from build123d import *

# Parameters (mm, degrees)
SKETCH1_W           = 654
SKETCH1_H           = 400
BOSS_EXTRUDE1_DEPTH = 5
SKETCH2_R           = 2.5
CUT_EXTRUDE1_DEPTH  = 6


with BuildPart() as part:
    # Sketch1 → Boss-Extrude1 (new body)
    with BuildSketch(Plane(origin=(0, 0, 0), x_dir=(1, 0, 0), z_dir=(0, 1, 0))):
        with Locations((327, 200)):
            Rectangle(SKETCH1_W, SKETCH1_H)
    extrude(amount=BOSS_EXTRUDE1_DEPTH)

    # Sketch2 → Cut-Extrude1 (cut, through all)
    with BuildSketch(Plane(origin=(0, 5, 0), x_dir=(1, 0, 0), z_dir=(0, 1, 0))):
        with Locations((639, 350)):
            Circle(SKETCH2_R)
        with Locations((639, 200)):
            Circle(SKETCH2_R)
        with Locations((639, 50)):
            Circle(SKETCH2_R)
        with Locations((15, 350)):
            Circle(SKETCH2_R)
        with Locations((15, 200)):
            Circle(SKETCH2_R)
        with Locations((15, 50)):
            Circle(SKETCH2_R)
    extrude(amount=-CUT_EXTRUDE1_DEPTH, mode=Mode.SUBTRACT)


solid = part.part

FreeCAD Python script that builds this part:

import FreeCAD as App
import Part
import Sketcher
from FreeCAD import Vector
Q = App.Units.Quantity

doc = App.newDocument("Part")
body = doc.addObject("PartDesign::Body", "Body")

sketch1 = body.newObject("Sketcher::SketchObject", "Sketch")
sketch1.AttachmentSupport = (doc.getObject("XZ_Plane"), [""])
sketch1.MapMode = "FlatFace"
sketch1.addGeometry(Part.LineSegment(Vector(0, -400, 0), Vector(0, 0, 0)), False)
sketch1.addGeometry(Part.LineSegment(Vector(0, 0, 0), Vector(654, 0, 0)), False)
sketch1.addGeometry(Part.LineSegment(Vector(654, 0, 0), Vector(654, -400, 0)), False)
sketch1.addGeometry(Part.LineSegment(Vector(654, -400, 0), Vector(0, -400, 0)), False)
sketch1.addConstraint(Sketcher.Constraint("Coincident", 0, 2, 1, 1))
sketch1.addConstraint(Sketcher.Constraint("Coincident", 1, 2, 2, 1))
sketch1.addConstraint(Sketcher.Constraint("Coincident", 2, 2, 3, 1))
sketch1.addConstraint(Sketcher.Constraint("Coincident", 3, 2, 0, 1))
sketch1.addConstraint(Sketcher.Constraint("Vertical", 0))
sketch1.addConstraint(Sketcher.Constraint("Horizontal", 1))
sketch1.addConstraint(Sketcher.Constraint("Vertical", 2))
sketch1.addConstraint(Sketcher.Constraint("Horizontal", 3))
sketch1.addConstraint(Sketcher.Constraint("Coincident", 0, 2, -1, 1))
sketch1.addConstraint(Sketcher.Constraint("DistanceX", 1, 1, 1, 2, Q("654 mm")))
sketch1.addConstraint(Sketcher.Constraint("DistanceY", 0, 1, 0, 2, Q("400 mm")))
pad1 = body.newObject("PartDesign::Pad", "Pad")
pad1.Profile = sketch1
pad1.Length = 5
pad1.Reversed = True

sketch2 = body.newObject("Sketcher::SketchObject", "Sketch001")
sketch2.AttachmentSupport = (doc.getObject("XZ_Plane"), [""])
sketch2.MapMode = "FlatFace"
sketch2.AttachmentOffset = App.Placement(Vector(0, 0, -5), App.Rotation())
sketch2.addGeometry(Part.Circle(Vector(639, -350, 0), Vector(0, 0, 1), 2.5), False)
sketch2.addGeometry(Part.Circle(Vector(639, -200, 0), Vector(0, 0, 1), 2.5), False)
sketch2.addGeometry(Part.Circle(Vector(639, -50, 0), Vector(0, 0, 1), 2.5), False)
sketch2.addGeometry(Part.Circle(Vector(15, -350, 0), Vector(0, 0, 1), 2.5), False)
sketch2.addGeometry(Part.Circle(Vector(15, -200, 0), Vector(0, 0, 1), 2.5), False)
sketch2.addGeometry(Part.Circle(Vector(15, -50, 0), Vector(0, 0, 1), 2.5), False)
sketch2.addConstraint(Sketcher.Constraint("Equal", 0, 1))
sketch2.addConstraint(Sketcher.Constraint("Equal", 1, 2))
sketch2.addConstraint(Sketcher.Constraint("Equal", 2, 3))
sketch2.addConstraint(Sketcher.Constraint("Equal", 3, 4))
sketch2.addConstraint(Sketcher.Constraint("Equal", 4, 5))
sketch2.addConstraint(Sketcher.Constraint("Horizontal", 0, 3, 3, 3))
sketch2.addConstraint(Sketcher.Constraint("Horizontal", 1, 3, 4, 3))
sketch2.addConstraint(Sketcher.Constraint("Horizontal", 2, 3, 5, 3))
sketch2.addConstraint(Sketcher.Constraint("Vertical", 0, 3, 1, 3))
sketch2.addConstraint(Sketcher.Constraint("Vertical", 1, 3, 2, 3))
sketch2.addConstraint(Sketcher.Constraint("Vertical", 3, 3, 4, 3))
sketch2.addConstraint(Sketcher.Constraint("Vertical", 4, 3, 5, 3))
sketch2.addConstraint(Sketcher.Constraint("Diameter", 0, Q("5 mm")))
sketch2.addConstraint(Sketcher.Constraint("DistanceX", -1, 1, 0, 3, Q("639 mm")))
sketch2.addConstraint(Sketcher.Constraint("DistanceY", 0, 3, -1, 1, Q("350 mm")))
sketch2.addConstraint(Sketcher.Constraint("DistanceY", 1, 3, -1, 1, Q("200 mm")))
sketch2.addConstraint(Sketcher.Constraint("DistanceY", 2, 3, -1, 1, Q("50 mm")))
sketch2.addConstraint(Sketcher.Constraint("DistanceX", -1, 1, 3, 3, Q("15 mm")))
pocket1 = body.newObject("PartDesign::Pocket", "Pocket")
pocket1.Profile = sketch2
pocket1.Type = "ThroughAll"
pocket1.Reversed = True

doc.recompute()
